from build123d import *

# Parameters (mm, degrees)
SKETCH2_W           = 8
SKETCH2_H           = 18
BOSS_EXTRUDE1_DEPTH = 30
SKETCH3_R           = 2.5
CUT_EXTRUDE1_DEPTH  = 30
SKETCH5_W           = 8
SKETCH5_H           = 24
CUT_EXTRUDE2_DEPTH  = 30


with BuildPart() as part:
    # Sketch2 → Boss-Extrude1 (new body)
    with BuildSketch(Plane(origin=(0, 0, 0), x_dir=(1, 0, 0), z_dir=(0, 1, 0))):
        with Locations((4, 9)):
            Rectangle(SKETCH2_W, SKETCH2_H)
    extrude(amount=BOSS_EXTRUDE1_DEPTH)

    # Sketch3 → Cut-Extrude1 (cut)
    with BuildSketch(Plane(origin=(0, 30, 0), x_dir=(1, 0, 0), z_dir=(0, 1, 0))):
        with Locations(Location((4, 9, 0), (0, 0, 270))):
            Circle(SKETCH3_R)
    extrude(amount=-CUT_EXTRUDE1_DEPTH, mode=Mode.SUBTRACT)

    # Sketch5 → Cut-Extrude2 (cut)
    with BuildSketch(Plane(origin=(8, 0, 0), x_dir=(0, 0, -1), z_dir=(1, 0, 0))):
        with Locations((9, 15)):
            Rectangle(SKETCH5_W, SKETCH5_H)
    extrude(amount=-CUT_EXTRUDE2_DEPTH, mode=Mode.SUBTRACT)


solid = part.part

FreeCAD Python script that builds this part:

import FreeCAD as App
import Part
import Sketcher
Q = App.Units.Quantity

doc = App.newDocument("Part")
body = doc.addObject("PartDesign::Body", "Body")

# Sketch on XZ plane
sketch1 = doc.addObject("Sketcher::SketchObject", "Sketch")
body.addObject(sketch1)
sketch1.AttachmentSupport = (doc.XZ_Plane, [""])
sketch1.MapMode = "FlatFace"
sketch1.addGeometry(Part.LineSegment(App.Vector(0, -18, 0), App.Vector(0, 0, 0)), False)
sketch1.addGeometry(Part.LineSegment(App.Vector(0, 0, 0), App.Vector(8, 0, 0)), False)
sketch1.addGeometry(Part.LineSegment(App.Vector(8, 0, 0), App.Vector(8, -18, 0)), False)
sketch1.addGeometry(Part.LineSegment(App.Vector(8, -18, 0), App.Vector(0, -18, 0)), False)
sketch1.addConstraint(Sketcher.Constraint("Coincident", 0, 2, 1, 1))
sketch1.addConstraint(Sketcher.Constraint("Coincident", 1, 2, 2, 1))
sketch1.addConstraint(Sketcher.Constraint("Coincident", 2, 2, 3, 1))
sketch1.addConstraint(Sketcher.Constraint("Coincident", 3, 2, 0, 1))
sketch1.addConstraint(Sketcher.Constraint("Vertical", 0))
sketch1.addConstraint(Sketcher.Constraint("Horizontal", 1))
sketch1.addConstraint(Sketcher.Constraint("Vertical", 2))
sketch1.addConstraint(Sketcher.Constraint("Horizontal", 3))
sketch1.addConstraint(Sketcher.Constraint("Coincident", 0, 2, -1, 1))
sketch1.addConstraint(Sketcher.Constraint("DistanceX", 1, 1, 1, 2, Q("8 mm")))
sketch1.addConstraint(Sketcher.Constraint("DistanceY", 0, 1, 0, 2, Q("18 mm")))
pad1 = doc.addObject("PartDesign::Pad", "Pad")
body.addObject(pad1)
pad1.Profile = sketch1
pad1.Length = 30
pad1.Reversed = True

# Sketch on XZ plane
sketch2 = doc.addObject("Sketcher::SketchObject", "Sketch001")
body.addObject(sketch2)
sketch2.AttachmentSupport = (doc.XZ_Plane, [""])
sketch2.MapMode = "FlatFace"
sketch2.AttachmentOffset = App.Placement(App.Vector(0, 0, -30), App.Rotation())
sketch2.addGeometry(Part.Circle(App.Vector(4, -9, 0), App.Vector(0, 0, 1), 2.5), False)
sketch2.addConstraint(Sketcher.Constraint("Diameter", 0, Q("5 mm")))
sketch2.addConstraint(Sketcher.Constraint("DistanceX", -1, 1, 0, 3, Q("4 mm")))
sketch2.addConstraint(Sketcher.Constraint("DistanceY", 0, 3, -1, 1, Q("9 mm")))
pocket1 = doc.addObject("PartDesign::Pocket", "Pocket")
body.addObject(pocket1)
pocket1.Profile = sketch2
pocket1.Length = 30
pocket1.Reversed = True

# Sketch on YZ plane
sketch3 = doc.addObject("Sketcher::SketchObject", "Sketch002")
body.addObject(sketch3)
sketch3.AttachmentSupport = (doc.YZ_Plane, [""])
sketch3.MapMode = "FlatFace"
sketch3.AttachmentOffset = App.Placement(App.Vector(0, 0, 8), App.Rotation())
sketch3.addGeometry(Part.LineSegment(App.Vector(27, -5, 0), App.Vector(3, -5, 0)), False)
sketch3.addGeometry(Part.LineSegment(App.Vector(3, -5, 0), App.Vector(3, -13, 0)), False)
sketch3.addGeometry(Part.LineSegment(App.Vector(3, -13, 0), App.Vector(27, -13, 0)), False)
sketch3.addGeometry(Part.LineSegment(App.Vector(27, -13, 0), App.Vector(27, -5, 0)), False)
sketch3.addConstraint(Sketcher.Constraint("Coincident", 0, 2, 1, 1))
sketch3.addConstraint(Sketcher.Constraint("Coincident", 1, 2, 2, 1))
sketch3.addConstraint(Sketcher.Constraint("Coincident", 2, 2, 3, 1))
sketch3.addConstraint(Sketcher.Constraint("Coincident", 3, 2, 0, 1))
sketch3.addConstraint(Sketcher.Constraint("Horizontal", 0))
sketch3.addConstraint(Sketcher.Constraint("Vertical", 1))
sketch3.addConstraint(Sketcher.Constraint("Horizontal", 2))
sketch3.addConstraint(Sketcher.Constraint("Vertical", 3))
sketch3.addConstraint(Sketcher.Constraint("DistanceX", 0, 2, 0, 1, Q("24 mm")))
sketch3.addConstraint(Sketcher.Constraint("DistanceY", 1, 2, 1, 1, Q("8 mm")))
sketch3.addConstraint(Sketcher.Constraint("DistanceX", -1, 1, 0, 2, Q("3 mm")))
sketch3.addConstraint(Sketcher.Constraint("DistanceY", 0, 2, -1, 1, Q("5 mm")))
pocket2 = doc.addObject("PartDesign::Pocket", "Pocket001")
body.addObject(pocket2)
pocket2.Profile = sketch3
pocket2.Length = 30

doc.recompute()
